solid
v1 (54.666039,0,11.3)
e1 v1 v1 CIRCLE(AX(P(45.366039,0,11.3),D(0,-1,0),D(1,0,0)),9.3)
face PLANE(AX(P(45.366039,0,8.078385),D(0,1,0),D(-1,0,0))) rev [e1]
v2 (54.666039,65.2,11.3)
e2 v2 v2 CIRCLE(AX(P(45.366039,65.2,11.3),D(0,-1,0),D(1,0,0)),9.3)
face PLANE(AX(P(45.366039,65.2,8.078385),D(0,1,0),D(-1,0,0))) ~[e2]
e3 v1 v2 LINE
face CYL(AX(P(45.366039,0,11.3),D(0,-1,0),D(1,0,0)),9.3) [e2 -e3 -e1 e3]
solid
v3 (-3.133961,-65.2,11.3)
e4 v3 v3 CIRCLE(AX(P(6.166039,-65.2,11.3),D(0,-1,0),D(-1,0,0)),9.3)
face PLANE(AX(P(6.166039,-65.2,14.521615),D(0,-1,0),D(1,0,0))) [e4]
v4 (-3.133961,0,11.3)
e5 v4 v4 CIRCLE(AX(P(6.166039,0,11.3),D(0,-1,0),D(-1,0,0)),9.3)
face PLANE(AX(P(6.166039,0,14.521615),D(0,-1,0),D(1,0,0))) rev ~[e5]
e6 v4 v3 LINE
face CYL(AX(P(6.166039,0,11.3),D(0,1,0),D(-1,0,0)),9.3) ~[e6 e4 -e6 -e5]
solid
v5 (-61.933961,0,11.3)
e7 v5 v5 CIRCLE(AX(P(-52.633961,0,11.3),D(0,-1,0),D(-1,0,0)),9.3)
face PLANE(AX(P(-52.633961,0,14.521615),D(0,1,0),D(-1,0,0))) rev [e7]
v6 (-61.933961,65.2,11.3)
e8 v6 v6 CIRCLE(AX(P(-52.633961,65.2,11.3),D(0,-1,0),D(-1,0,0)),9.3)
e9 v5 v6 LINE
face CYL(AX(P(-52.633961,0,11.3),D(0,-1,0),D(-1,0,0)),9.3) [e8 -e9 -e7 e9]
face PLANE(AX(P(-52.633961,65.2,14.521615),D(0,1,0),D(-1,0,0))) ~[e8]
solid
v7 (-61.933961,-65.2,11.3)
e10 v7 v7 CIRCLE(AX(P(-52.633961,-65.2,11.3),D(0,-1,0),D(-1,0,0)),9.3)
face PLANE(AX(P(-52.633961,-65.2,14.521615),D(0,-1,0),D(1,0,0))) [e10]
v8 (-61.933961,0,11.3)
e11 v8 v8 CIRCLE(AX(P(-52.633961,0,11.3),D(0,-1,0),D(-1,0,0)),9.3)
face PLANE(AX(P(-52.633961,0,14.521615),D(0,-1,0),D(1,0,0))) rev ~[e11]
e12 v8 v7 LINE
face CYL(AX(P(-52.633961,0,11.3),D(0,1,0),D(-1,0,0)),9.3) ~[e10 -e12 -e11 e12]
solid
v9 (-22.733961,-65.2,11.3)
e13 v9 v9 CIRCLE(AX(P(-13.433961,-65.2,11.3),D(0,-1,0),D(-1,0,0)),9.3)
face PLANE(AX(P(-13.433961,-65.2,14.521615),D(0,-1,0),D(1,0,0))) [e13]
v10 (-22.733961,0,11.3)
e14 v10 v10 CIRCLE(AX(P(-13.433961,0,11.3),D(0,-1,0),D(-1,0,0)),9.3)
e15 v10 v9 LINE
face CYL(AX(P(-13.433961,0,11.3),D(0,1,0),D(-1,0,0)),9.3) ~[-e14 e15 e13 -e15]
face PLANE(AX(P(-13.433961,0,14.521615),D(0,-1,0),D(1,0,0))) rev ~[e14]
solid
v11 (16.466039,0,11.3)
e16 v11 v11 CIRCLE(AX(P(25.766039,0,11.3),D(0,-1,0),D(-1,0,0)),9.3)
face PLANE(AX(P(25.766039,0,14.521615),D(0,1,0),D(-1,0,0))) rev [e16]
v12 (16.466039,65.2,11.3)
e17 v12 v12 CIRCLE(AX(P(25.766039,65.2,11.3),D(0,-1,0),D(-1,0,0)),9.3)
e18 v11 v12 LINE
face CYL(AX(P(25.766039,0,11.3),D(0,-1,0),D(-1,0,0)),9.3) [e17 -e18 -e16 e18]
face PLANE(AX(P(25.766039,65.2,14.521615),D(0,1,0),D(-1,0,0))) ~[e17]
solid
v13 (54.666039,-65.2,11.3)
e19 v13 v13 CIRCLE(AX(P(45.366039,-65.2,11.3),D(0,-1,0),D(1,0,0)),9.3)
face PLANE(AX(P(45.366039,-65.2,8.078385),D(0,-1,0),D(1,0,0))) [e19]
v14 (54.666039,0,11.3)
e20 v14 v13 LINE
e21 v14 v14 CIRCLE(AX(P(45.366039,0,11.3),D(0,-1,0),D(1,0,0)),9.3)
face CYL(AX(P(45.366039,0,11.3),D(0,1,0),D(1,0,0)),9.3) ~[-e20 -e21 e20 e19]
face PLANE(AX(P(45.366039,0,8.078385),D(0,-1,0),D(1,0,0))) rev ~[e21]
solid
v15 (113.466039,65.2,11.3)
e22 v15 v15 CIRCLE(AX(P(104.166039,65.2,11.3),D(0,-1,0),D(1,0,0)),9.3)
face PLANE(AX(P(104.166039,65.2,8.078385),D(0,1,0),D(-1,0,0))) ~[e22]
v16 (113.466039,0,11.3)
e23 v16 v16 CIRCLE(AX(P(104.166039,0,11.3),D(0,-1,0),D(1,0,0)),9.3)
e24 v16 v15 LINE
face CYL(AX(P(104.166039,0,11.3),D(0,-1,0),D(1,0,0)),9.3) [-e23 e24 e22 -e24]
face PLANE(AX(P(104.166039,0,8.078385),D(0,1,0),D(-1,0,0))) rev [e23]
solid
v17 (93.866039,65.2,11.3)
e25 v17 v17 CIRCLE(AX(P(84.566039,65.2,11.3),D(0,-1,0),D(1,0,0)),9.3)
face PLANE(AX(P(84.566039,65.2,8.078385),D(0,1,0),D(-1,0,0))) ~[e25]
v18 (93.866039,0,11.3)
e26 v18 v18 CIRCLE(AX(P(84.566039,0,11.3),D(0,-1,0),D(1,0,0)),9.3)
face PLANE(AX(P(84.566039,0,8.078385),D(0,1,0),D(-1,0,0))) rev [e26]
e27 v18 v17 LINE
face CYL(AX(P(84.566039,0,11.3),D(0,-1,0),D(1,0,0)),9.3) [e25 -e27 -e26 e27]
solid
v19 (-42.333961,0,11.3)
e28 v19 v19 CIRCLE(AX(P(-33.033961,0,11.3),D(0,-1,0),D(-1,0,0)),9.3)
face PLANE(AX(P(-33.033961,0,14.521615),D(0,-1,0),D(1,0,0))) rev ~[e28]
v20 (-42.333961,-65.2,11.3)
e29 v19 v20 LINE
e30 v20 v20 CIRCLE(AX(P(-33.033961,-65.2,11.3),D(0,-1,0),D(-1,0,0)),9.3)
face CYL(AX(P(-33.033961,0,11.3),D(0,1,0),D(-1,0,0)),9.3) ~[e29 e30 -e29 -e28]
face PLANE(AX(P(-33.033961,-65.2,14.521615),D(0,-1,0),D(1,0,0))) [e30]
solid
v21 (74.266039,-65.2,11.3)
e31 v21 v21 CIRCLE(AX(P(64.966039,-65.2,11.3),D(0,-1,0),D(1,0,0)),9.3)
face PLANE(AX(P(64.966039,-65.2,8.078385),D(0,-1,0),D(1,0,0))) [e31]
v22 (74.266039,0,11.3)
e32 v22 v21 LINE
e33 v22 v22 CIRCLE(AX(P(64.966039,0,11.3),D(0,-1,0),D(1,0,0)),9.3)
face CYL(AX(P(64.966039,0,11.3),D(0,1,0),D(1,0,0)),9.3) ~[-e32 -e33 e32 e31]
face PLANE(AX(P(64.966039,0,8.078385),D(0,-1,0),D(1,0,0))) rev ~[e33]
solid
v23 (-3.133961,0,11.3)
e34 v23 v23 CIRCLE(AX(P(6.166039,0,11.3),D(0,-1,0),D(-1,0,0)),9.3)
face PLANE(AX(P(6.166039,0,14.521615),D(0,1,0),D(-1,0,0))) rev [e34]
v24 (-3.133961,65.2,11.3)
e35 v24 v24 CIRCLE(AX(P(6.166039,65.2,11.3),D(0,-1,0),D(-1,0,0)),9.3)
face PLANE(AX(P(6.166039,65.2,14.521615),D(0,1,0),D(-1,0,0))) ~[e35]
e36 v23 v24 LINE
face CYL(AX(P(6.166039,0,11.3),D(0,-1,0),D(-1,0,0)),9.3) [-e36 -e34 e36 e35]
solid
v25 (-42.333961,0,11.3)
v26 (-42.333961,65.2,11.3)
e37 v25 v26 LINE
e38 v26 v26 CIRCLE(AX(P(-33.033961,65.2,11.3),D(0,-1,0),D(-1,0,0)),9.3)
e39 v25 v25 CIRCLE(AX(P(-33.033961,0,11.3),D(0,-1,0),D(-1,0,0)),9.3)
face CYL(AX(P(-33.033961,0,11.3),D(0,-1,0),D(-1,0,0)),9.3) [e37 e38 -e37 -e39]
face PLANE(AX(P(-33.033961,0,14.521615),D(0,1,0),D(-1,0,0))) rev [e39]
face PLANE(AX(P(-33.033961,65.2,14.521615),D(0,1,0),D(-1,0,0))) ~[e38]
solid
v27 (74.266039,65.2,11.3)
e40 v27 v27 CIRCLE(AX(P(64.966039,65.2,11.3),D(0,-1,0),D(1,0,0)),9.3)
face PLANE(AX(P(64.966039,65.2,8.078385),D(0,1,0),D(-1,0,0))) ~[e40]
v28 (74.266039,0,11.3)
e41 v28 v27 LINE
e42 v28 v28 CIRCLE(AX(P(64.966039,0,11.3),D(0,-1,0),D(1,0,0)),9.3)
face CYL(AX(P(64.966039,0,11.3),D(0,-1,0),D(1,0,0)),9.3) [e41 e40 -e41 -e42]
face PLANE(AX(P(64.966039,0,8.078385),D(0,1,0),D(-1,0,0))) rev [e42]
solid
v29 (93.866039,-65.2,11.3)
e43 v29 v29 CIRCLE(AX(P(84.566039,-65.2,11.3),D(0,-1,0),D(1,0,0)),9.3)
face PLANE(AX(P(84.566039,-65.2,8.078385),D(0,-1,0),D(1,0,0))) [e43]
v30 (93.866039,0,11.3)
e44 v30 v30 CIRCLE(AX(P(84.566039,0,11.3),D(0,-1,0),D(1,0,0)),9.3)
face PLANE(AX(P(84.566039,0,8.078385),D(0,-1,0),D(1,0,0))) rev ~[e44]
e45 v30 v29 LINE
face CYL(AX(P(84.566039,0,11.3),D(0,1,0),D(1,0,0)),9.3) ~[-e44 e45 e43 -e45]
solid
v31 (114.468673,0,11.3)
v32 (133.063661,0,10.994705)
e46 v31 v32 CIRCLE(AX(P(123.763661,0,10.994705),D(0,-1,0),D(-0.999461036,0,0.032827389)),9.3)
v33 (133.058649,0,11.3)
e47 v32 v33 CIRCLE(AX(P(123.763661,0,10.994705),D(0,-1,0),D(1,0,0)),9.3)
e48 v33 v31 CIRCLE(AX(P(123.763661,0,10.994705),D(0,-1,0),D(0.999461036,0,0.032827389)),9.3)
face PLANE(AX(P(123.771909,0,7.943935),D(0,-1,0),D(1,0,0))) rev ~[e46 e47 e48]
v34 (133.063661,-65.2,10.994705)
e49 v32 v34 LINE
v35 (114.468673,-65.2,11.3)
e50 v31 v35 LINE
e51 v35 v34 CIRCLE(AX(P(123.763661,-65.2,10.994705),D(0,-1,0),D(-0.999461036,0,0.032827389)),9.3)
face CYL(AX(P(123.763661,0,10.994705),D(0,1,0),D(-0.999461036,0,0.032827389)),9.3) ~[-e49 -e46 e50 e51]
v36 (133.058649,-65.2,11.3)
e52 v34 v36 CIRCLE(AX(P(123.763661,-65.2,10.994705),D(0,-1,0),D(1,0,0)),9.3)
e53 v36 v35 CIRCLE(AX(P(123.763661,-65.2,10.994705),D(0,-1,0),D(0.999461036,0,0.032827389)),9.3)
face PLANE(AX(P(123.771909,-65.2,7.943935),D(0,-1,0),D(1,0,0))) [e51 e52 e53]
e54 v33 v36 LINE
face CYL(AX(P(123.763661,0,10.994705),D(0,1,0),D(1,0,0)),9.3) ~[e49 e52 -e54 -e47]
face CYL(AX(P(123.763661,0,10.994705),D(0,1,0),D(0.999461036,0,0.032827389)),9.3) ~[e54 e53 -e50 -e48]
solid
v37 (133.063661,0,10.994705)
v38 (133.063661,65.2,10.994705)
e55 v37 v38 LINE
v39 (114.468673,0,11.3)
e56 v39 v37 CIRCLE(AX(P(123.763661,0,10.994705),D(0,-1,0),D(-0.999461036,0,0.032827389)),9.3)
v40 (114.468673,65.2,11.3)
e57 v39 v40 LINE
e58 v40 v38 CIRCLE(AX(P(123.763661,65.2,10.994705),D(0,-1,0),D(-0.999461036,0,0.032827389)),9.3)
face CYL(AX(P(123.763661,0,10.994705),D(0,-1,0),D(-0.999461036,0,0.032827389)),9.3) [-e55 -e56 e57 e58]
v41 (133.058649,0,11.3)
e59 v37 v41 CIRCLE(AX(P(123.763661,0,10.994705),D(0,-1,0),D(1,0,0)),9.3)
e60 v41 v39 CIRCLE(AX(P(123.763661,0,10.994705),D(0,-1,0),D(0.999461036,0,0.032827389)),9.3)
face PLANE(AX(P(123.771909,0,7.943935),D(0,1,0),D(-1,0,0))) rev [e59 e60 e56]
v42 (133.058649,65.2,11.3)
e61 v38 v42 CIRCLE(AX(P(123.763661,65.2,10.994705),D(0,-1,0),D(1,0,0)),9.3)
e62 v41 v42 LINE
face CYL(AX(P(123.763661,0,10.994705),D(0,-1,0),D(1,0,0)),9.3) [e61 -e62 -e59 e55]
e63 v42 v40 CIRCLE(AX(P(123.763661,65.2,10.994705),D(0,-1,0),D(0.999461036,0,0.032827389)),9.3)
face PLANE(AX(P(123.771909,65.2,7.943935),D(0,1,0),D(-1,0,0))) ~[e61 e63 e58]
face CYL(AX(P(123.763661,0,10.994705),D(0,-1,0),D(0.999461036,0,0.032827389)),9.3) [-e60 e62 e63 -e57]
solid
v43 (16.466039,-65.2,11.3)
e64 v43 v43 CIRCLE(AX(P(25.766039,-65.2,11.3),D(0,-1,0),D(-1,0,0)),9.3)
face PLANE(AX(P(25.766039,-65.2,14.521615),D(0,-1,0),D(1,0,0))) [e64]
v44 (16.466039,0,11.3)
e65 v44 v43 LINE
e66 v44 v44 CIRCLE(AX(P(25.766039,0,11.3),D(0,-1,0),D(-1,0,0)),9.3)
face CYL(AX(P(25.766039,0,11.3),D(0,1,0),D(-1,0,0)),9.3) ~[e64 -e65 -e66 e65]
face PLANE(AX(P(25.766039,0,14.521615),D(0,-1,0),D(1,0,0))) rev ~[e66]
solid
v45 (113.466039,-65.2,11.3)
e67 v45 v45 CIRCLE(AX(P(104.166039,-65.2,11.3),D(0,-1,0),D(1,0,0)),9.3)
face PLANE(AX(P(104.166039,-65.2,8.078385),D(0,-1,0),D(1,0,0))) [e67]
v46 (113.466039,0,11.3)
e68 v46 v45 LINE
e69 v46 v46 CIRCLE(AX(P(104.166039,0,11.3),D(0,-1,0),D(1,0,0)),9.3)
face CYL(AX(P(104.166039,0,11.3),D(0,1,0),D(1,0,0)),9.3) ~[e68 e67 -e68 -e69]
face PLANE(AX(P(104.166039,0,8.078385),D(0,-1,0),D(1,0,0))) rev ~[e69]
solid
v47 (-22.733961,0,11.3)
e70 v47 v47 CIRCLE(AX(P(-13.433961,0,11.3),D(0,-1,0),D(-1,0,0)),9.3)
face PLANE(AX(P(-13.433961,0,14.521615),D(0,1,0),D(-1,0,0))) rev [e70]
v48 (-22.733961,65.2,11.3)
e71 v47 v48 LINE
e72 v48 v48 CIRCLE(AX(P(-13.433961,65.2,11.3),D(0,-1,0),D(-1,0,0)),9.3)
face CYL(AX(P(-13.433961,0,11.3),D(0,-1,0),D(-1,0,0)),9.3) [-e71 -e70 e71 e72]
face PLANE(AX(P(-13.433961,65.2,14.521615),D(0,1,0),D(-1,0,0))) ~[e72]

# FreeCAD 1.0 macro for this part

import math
import FreeCAD as App
import Part
import Sketcher
from FreeCAD import Vector

doc = App.newDocument("Part")
body = doc.addObject("PartDesign::Body", "Body")

sketch1 = body.newObject("Sketcher::SketchObject", "Sketch")
sketch1.AttachmentSupport = (doc.getObject("XZ_Plane"), [""])
sketch1.MapMode = "FlatFace"
sketch1.addGeometry(Part.Circle(Vector(-53, 11, 0), Vector(0, 0, 1), 9), False)
sketch1.addConstraint([
    Sketcher.Constraint("Diameter", 0, 18.6),
    Sketcher.Constraint("DistanceY", -1, 1, 0, 3, 11.3),
    Sketcher.Constraint("DistanceX", 0, 3, -1, 1, 52.633961),
])
pad1 = body.newObject("PartDesign::Pad", "Pad")
pad1.Profile = sketch1
pad1.Length = 65.2
body2 = doc.addObject("PartDesign::Body", "Body001")

sketch2 = body2.newObject("Sketcher::SketchObject", "Sketch001")
sketch2.AttachmentSupport = (doc.getObject("XZ_Plane001"), [""])
sketch2.MapMode = "FlatFace"
sketch2.addGeometry(Part.Circle(Vector(-33, 11, 0), Vector(0, 0, 1), 9), False)
sketch2.addConstraint([
    Sketcher.Constraint("Diameter", 0, 18.6),
    Sketcher.Constraint("DistanceY", -1, 1, 0, 3, 11.3),
    Sketcher.Constraint("DistanceX", 0, 3, -1, 1, 33.033961),
])
pad2 = body2.newObject("PartDesign::Pad", "Pad001")
pad2.Profile = sketch2
pad2.Length = 65.2
body3 = doc.addObject("PartDesign::Body", "Body002")

sketch3 = body3.newObject("Sketcher::SketchObject", "Sketch002")
sketch3.AttachmentSupport = (doc.getObject("XZ_Plane002"), [""])
sketch3.MapMode = "FlatFace"
sketch3.addGeometry(Part.Circle(Vector(-13, 11, 0), Vector(0, 0, 1), 9), False)
sketch3.addConstraint([
    Sketcher.Constraint("Diameter", 0, 18.6),
    Sketcher.Constraint("DistanceY", -1, 1, 0, 3, 11.3),
    Sketcher.Constraint("DistanceX", 0, 3, -1, 1, 13.433961),
])
pad3 = body3.newObject("PartDesign::Pad", "Pad002")
pad3.Profile = sketch3
pad3.Length = 65.2
body4 = doc.addObject("PartDesign::Body", "Body003")

sketch4 = body4.newObject("Sketcher::SketchObject", "Sketch003")
sketch4.AttachmentSupport = (doc.getObject("XZ_Plane003"), [""])
sketch4.MapMode = "FlatFace"
sketch4.addGeometry(Part.Circle(Vector(6, 11, 0), Vector(0, 0, 1), 9), False)
sketch4.addConstraint([
    Sketcher.Constraint("Diameter", 0, 18.6),
    Sketcher.Constraint("DistanceY", -1, 1, 0, 3, 11.3),
    Sketcher.Constraint("DistanceX", -1, 1, 0, 3, 6.166039),
])
pad4 = body4.newObject("PartDesign::Pad", "Pad003")
pad4.Profile = sketch4
pad4.Length = 65.2
body5 = doc.addObject("PartDesign::Body", "Body004")

sketch5 = body5.newObject("Sketcher::SketchObject", "Sketch004")
sketch5.AttachmentSupport = (doc.getObject("XZ_Plane004"), [""])
sketch5.MapMode = "FlatFace"
sketch5.addGeometry(Part.Circle(Vector(26, 11, 0), Vector(0, 0, 1), 9), False)
sketch5.addConstraint([
    Sketcher.Constraint("Diameter", 0, 18.6),
    Sketcher.Constraint("DistanceY", -1, 1, 0, 3, 11.3),
    Sketcher.Constraint("DistanceX", -1, 1, 0, 3, 25.766039),
])
pad5 = body5.newObject("PartDesign::Pad", "Pad004")
pad5.Profile = sketch5
pad5.Length = 65.2
body6 = doc.addObject("PartDesign::Body", "Body005")

sketch6 = body6.newObject("Sketcher::SketchObject", "Sketch005")
sketch6.AttachmentSupport = (doc.getObject("XZ_Plane005"), [""])
sketch6.MapMode = "FlatFace"
sketch6.addGeometry(Part.Circle(Vector(45, 11, 0), Vector(0, 0, 1), 9), False)
sketch6.addConstraint([
    Sketcher.Constraint("Diameter", 0, 18.6),
    Sketcher.Constraint("DistanceY", -1, 1, 0, 3, 11.3),
    Sketcher.Constraint("DistanceX", -1, 1, 0, 3, 45.366039),
])
pad6 = body6.newObject("PartDesign::Pad", "Pad005")
pad6.Profile = sketch6
pad6.Length = 65.2
body7 = doc.addObject("PartDesign::Body", "Body006")

sketch7 = body7.newObject("Sketcher::SketchObject", "Sketch006")
sketch7.AttachmentSupport = (doc.getObject("XZ_Plane006"), [""])
sketch7.MapMode = "FlatFace"
sketch7.addGeometry(Part.Circle(Vector(65, 11, 0), Vector(0, 0, 1), 9), False)
sketch7.addConstraint([
    Sketcher.Constraint("Diameter", 0, 18.6),
    Sketcher.Constraint("DistanceY", -1, 1, 0, 3, 11.3),
    Sketcher.Constraint("DistanceX", -1, 1, 0, 3, 64.966039),
])
pad7 = body7.newObject("PartDesign::Pad", "Pad006")
pad7.Profile = sketch7
pad7.Length = 65.2
body8 = doc.addObject("PartDesign::Body", "Body007")

sketch8 = body8.newObject("Sketcher::SketchObject", "Sketch007")
sketch8.AttachmentSupport = (doc.getObject("XZ_Plane007"), [""])
sketch8.MapMode = "FlatFace"
sketch8.addGeometry(Part.Circle(Vector(85, 11, 0), Vector(0, 0, 1), 9), False)
sketch8.addConstraint([
    Sketcher.Constraint("Diameter", 0, 18.6),
    Sketcher.Constraint("DistanceY", -1, 1, 0, 3, 11.3),
    Sketcher.Constraint("DistanceX", -1, 1, 0, 3, 84.566039),
])
pad8 = body8.newObject("PartDesign::Pad", "Pad007")
pad8.Profile = sketch8
pad8.Length = 65.2
body9 = doc.addObject("PartDesign::Body", "Body008")

sketch9 = body9.newObject("Sketcher::SketchObject", "Sketch008")
sketch9.AttachmentSupport = (doc.getObject("XZ_Plane008"), [""])
sketch9.MapMode = "FlatFace"
sketch9.addGeometry(Part.Circle(Vector(104, 11, 0), Vector(0, 0, 1), 9), False)
sketch9.addConstraint([
    Sketcher.Constraint("Diameter", 0, 18.6),
    Sketcher.Constraint("DistanceY", -1, 1, 0, 3, 11.3),
    Sketcher.Constraint("DistanceX", -1, 1, 0, 3, 104.166039),
])
pad9 = body9.newObject("PartDesign::Pad", "Pad008")
pad9.Profile = sketch9
pad9.Length = 65.2
body10 = doc.addObject("PartDesign::Body", "Body009")

sketch10 = body10.newObject("Sketcher::SketchObject", "Sketch009")
sketch10.AttachmentSupport = (doc.getObject("XZ_Plane009"), [""])
sketch10.MapMode = "FlatFace"
sketch10.addGeometry([
    Part.ArcOfCircle(Part.Circle(Vector(123.76, 10.99, 0), Vector(0, 0, 1), 9.3), math.radians(0), math.radians(1.88)),
    Part.ArcOfCircle(Part.Circle(Vector(123.76, 10.99, 0), Vector(0, 0, 1), 9.3), math.radians(2), math.radians(178)),
    Part.ArcOfCircle(Part.Circle(Vector(123.76, 10.99, 0), Vector(0, 0, 1), 9.3), math.radians(178), math.radians(360)),
], False)
sketch10.addConstraint([
    Sketcher.Constraint("Tangent", 0, 2, 1, 1),
    Sketcher.Constraint("Tangent", 1, 2, 2, 1),
    Sketcher.Constraint("Tangent", 2, 2, 0, 1),
    Sketcher.Constraint("Horizontal", 0, 2, 1, 2),
    Sketcher.Constraint("Horizontal", 1, 3, 2, 2),
    Sketcher.Constraint("Radius", 0, 9.3),
    Sketcher.Constraint("DistanceY", -1, 1, 0, 2, 11.3),
    Sketcher.Constraint("DistanceX", -1, 1, 0, 3, 123.763661),
    Sketcher.Constraint("DistanceX", -1, 1, 0, 2, 133.058649),
])
pad10 = body10.newObject("PartDesign::Pad", "Pad009")
pad10.Profile = sketch10
pad10.Length = 65.2
body11 = doc.addObject("PartDesign::Body", "Body010")
doc.recompute()

mirroring = doc.addObject("Part::Mirroring", "Mirroring")
mirroring.Source = body
mirroring.Base = Vector(0, 0, 0)
mirroring.Normal = Vector(0, -1, 0)
body11.BaseFeature = mirroring
doc.recompute()
body12 = doc.addObject("PartDesign::Body", "Body011")
doc.recompute()

mirroring2 = doc.addObject("Part::Mirroring", "Mirroring001")
mirroring2.Source = body2
mirroring2.Base = Vector(0, 0, 0)
mirroring2.Normal = Vector(0, -1, 0)
body12.BaseFeature = mirroring2
doc.recompute()
body13 = doc.addObject("PartDesign::Body", "Body012")
doc.recompute()

mirroring3 = doc.addObject("Part::Mirroring", "Mirroring002")
mirroring3.Source = body3
mirroring3.Base = Vector(0, 0, 0)
mirroring3.Normal = Vector(0, -1, 0)
body13.BaseFeature = mirroring3
doc.recompute()
body14 = doc.addObject("PartDesign::Body", "Body013")
doc.recompute()

mirroring4 = doc.addObject("Part::Mirroring", "Mirroring003")
mirroring4.Source = body4
mirroring4.Base = Vector(0, 0, 0)
mirroring4.Normal = Vector(0, -1, 0)
body14.BaseFeature = mirroring4
doc.recompute()
body15 = doc.addObject("PartDesign::Body", "Body014")
doc.recompute()

mirroring5 = doc.addObject("Part::Mirroring", "Mirroring004")
mirroring5.Source = body5
mirroring5.Base = Vector(0, 0, 0)
mirroring5.Normal = Vector(0, -1, 0)
body15.BaseFeature = mirroring5
doc.recompute()
body16 = doc.addObject("PartDesign::Body", "Body015")
doc.recompute()

mirroring6 = doc.addObject("Part::Mirroring", "Mirroring005")
mirroring6.Source = body6
mirroring6.Base = Vector(0, 0, 0)
mirroring6.Normal = Vector(0, -1, 0)
body16.BaseFeature = mirroring6
doc.recompute()
body17 = doc.addObject("PartDesign::Body", "Body016")
doc.recompute()

mirroring7 = doc.addObject("Part::Mirroring", "Mirroring006")
mirroring7.Source = body7
mirroring7.Base = Vector(0, 0, 0)
mirroring7.Normal = Vector(0, -1, 0)
body17.BaseFeature = mirroring7
doc.recompute()
body18 = doc.addObject("PartDesign::Body", "Body017")
doc.recompute()

mirroring8 = doc.addObject("Part::Mirroring", "Mirroring007")
mirroring8.Source = body8
mirroring8.Base = Vector(0, 0, 0)
mirroring8.Normal = Vector(0, -1, 0)
body18.BaseFeature = mirroring8
doc.recompute()
body19 = doc.addObject("PartDesign::Body", "Body018")
doc.recompute()

mirroring9 = doc.addObject("Part::Mirroring", "Mirroring008")
mirroring9.Source = body9
mirroring9.Base = Vector(0, 0, 0)
mirroring9.Normal = Vector(0, -1, 0)
body19.BaseFeature = mirroring9
doc.recompute()
body20 = doc.addObject("PartDesign::Body", "Body019")
doc.recompute()

mirroring10 = doc.addObject("Part::Mirroring", "Mirroring009")
mirroring10.Source = body10
mirroring10.Base = Vector(0, 0, 0)
mirroring10.Normal = Vector(0, -1, 0)
body20.BaseFeature = mirroring10
doc.recompute()

doc.recompute()
